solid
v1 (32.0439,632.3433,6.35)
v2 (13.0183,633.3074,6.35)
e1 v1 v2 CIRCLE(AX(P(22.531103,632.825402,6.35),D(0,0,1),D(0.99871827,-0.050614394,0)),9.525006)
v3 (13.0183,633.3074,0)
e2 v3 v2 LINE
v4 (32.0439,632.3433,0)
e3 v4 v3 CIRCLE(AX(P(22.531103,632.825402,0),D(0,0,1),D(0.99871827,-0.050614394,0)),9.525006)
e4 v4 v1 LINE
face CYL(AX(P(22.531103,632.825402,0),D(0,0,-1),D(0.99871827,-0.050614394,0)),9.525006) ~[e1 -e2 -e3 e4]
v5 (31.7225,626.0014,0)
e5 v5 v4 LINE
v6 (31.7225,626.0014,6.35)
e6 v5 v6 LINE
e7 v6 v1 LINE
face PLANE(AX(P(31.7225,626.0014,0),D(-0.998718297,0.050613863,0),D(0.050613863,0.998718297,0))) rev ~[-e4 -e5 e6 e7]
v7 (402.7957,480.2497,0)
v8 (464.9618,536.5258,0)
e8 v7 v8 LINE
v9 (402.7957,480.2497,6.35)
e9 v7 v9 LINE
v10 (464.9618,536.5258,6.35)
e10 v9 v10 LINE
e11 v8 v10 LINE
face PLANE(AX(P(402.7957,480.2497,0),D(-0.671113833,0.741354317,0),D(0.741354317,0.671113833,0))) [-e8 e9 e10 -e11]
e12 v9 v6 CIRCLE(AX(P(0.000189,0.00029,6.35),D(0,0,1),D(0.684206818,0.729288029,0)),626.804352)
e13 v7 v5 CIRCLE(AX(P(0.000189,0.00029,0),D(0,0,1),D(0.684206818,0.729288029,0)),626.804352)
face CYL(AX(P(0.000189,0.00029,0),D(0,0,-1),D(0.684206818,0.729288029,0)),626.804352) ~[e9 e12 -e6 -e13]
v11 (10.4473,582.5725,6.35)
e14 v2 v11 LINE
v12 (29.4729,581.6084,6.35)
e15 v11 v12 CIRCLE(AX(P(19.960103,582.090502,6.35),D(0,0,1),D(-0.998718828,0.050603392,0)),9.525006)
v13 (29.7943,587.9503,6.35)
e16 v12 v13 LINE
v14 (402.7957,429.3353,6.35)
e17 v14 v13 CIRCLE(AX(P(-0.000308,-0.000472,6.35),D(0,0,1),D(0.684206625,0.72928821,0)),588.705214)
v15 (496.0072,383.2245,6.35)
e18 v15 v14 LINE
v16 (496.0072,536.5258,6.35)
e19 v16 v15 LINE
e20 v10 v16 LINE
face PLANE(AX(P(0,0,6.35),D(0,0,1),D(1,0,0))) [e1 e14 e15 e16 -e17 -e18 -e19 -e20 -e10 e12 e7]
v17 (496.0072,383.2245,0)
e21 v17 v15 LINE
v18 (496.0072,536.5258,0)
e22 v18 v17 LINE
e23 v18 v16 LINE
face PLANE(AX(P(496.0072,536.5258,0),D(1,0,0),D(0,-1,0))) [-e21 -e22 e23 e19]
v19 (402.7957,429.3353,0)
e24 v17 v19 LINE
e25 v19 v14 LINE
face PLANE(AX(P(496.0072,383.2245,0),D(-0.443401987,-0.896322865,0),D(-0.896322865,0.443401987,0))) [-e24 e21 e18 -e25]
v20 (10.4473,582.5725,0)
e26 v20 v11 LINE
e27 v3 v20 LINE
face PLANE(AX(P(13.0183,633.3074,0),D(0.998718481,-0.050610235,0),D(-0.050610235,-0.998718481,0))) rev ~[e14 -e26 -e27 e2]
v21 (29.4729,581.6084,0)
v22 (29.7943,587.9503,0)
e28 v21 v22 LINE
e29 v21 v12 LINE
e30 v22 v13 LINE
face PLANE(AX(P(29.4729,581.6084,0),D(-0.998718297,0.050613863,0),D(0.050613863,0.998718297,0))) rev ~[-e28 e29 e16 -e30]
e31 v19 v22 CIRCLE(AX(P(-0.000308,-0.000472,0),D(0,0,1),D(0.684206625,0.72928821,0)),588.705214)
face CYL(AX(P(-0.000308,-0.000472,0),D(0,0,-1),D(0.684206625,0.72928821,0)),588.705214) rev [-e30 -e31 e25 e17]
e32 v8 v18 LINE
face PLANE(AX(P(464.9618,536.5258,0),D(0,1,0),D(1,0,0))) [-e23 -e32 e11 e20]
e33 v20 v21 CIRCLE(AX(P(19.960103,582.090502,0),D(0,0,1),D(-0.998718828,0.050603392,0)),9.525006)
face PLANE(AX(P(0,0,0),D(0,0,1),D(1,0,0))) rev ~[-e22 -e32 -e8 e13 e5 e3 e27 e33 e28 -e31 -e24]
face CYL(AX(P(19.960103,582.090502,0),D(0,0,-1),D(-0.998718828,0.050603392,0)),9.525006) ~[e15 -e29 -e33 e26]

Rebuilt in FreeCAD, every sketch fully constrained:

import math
import FreeCAD as App
import Part
import Sketcher

V = App.Vector
Q = App.Units.Quantity

doc = App.newDocument("Part")
body = doc.addObject("PartDesign::Body", "Body")

# Sketch on XY plane
sketch1 = doc.addObject("Sketcher::SketchObject", "Sketch")
body.addObject(sketch1)
sketch1.AttachmentSupport = (doc.XY_Plane, [""])
sketch1.MapMode = "FlatFace"
sketch1.addGeometry([
    Part.ArcOfCircle(Part.Circle(V(0, 0, 0), V(0, 0, 1), 589), math.radians(47), math.radians(87)),  # 0
    Part.LineSegment(V(403, 429, 0), V(496, 383, 0)),  # 1
    Part.LineSegment(V(496, 383, 0), V(496, 537, 0)),  # 2
    Part.LineSegment(V(496, 537, 0), V(465, 537, 0)),  # 3
    Part.LineSegment(V(465, 537, 0), V(403, 480, 0)),  # 4
    Part.ArcOfCircle(Part.Circle(V(0, 0, 0), V(0, 0, 1), 627), math.radians(50), math.radians(87)),  # 5
    Part.LineSegment(V(32, 626, 0), V(32, 632, 0)),  # 6
    Part.ArcOfCircle(Part.Circle(V(23, 633, 0), V(0, 0, 1), 10), math.radians(-3), math.radians(177)),  # 7
    Part.LineSegment(V(13, 633, 0), V(10, 583, 0)),  # 8
    Part.ArcOfCircle(Part.Circle(V(20, 582, 0), V(0, 0, 1), 10), math.radians(177), math.radians(357)),  # 9
    Part.LineSegment(V(29, 582, 0), V(30, 588, 0)),  # 10
], False)
sketch1.addConstraint([
    Sketcher.Constraint("Coincident", 0, 1, 1, 1),
    Sketcher.Constraint("Coincident", 1, 2, 2, 1),
    Sketcher.Constraint("Coincident", 2, 2, 3, 1),
    Sketcher.Constraint("Coincident", 3, 2, 4, 1),
    Sketcher.Constraint("Coincident", 4, 2, 5, 1),
    Sketcher.Constraint("Coincident", 5, 2, 6, 1),
    Sketcher.Constraint("Tangent", 6, 2, 7, 1),
    Sketcher.Constraint("Tangent", 7, 2, 8, 1),
    Sketcher.Constraint("Tangent", 8, 2, 9, 1),
    Sketcher.Constraint("Tangent", 9, 2, 10, 1),
    Sketcher.Constraint("Coincident", 10, 2, 0, 2),
    Sketcher.Constraint("Vertical", 2),
    Sketcher.Constraint("Horizontal", 3),
    Sketcher.Constraint("Coincident", 0, 3, -1, 1),
    Sketcher.Constraint("Coincident", 5, 3, -1, 1),
    Sketcher.Constraint("Equal", 7, 9),
    Sketcher.Constraint("Parallel", 6, 8),
    Sketcher.Constraint("Parallel", 8, 10),
    Sketcher.Constraint("Vertical", 0, 1, 4, 2),
    Sketcher.Constraint("Equal", 6, 10),
    Sketcher.Constraint("Distance", 8, Q("2 in")),
    Sketcher.Constraint("Radius", 7, Q("0.375 in")),
    Sketcher.Constraint("Radius", 0, Q("588.7047 mm")),
    Sketcher.Constraint("Angle", 8, Q("-92.901 deg")),
    Sketcher.Constraint("Distance", 6, Q("0.25 in")),
    Sketcher.Constraint("Angle", 1, Q("-26.3211 deg")),
    Sketcher.Constraint("DistanceX", -1, 1, 10, 2, Q("1.173 in")),
    Sketcher.Constraint("DistanceX", 9, 3, 1, 2, Q("18.742 in")),
    Sketcher.Constraint("DistanceX", 3, 2, 3, 1, Q("31.0454 mm")),
    Sketcher.Constraint("DistanceY", 2, 1, 2, 2, Q("153.3013 mm")),
    Sketcher.Constraint("DistanceX", -1, 1, 4, 2, Q("15.8581 in")),
])
pad1 = doc.addObject("PartDesign::Pad", "Pad")
body.addObject(pad1)
pad1.Profile = sketch1
pad1.Length = Q("0.25 in")

doc.recompute()
